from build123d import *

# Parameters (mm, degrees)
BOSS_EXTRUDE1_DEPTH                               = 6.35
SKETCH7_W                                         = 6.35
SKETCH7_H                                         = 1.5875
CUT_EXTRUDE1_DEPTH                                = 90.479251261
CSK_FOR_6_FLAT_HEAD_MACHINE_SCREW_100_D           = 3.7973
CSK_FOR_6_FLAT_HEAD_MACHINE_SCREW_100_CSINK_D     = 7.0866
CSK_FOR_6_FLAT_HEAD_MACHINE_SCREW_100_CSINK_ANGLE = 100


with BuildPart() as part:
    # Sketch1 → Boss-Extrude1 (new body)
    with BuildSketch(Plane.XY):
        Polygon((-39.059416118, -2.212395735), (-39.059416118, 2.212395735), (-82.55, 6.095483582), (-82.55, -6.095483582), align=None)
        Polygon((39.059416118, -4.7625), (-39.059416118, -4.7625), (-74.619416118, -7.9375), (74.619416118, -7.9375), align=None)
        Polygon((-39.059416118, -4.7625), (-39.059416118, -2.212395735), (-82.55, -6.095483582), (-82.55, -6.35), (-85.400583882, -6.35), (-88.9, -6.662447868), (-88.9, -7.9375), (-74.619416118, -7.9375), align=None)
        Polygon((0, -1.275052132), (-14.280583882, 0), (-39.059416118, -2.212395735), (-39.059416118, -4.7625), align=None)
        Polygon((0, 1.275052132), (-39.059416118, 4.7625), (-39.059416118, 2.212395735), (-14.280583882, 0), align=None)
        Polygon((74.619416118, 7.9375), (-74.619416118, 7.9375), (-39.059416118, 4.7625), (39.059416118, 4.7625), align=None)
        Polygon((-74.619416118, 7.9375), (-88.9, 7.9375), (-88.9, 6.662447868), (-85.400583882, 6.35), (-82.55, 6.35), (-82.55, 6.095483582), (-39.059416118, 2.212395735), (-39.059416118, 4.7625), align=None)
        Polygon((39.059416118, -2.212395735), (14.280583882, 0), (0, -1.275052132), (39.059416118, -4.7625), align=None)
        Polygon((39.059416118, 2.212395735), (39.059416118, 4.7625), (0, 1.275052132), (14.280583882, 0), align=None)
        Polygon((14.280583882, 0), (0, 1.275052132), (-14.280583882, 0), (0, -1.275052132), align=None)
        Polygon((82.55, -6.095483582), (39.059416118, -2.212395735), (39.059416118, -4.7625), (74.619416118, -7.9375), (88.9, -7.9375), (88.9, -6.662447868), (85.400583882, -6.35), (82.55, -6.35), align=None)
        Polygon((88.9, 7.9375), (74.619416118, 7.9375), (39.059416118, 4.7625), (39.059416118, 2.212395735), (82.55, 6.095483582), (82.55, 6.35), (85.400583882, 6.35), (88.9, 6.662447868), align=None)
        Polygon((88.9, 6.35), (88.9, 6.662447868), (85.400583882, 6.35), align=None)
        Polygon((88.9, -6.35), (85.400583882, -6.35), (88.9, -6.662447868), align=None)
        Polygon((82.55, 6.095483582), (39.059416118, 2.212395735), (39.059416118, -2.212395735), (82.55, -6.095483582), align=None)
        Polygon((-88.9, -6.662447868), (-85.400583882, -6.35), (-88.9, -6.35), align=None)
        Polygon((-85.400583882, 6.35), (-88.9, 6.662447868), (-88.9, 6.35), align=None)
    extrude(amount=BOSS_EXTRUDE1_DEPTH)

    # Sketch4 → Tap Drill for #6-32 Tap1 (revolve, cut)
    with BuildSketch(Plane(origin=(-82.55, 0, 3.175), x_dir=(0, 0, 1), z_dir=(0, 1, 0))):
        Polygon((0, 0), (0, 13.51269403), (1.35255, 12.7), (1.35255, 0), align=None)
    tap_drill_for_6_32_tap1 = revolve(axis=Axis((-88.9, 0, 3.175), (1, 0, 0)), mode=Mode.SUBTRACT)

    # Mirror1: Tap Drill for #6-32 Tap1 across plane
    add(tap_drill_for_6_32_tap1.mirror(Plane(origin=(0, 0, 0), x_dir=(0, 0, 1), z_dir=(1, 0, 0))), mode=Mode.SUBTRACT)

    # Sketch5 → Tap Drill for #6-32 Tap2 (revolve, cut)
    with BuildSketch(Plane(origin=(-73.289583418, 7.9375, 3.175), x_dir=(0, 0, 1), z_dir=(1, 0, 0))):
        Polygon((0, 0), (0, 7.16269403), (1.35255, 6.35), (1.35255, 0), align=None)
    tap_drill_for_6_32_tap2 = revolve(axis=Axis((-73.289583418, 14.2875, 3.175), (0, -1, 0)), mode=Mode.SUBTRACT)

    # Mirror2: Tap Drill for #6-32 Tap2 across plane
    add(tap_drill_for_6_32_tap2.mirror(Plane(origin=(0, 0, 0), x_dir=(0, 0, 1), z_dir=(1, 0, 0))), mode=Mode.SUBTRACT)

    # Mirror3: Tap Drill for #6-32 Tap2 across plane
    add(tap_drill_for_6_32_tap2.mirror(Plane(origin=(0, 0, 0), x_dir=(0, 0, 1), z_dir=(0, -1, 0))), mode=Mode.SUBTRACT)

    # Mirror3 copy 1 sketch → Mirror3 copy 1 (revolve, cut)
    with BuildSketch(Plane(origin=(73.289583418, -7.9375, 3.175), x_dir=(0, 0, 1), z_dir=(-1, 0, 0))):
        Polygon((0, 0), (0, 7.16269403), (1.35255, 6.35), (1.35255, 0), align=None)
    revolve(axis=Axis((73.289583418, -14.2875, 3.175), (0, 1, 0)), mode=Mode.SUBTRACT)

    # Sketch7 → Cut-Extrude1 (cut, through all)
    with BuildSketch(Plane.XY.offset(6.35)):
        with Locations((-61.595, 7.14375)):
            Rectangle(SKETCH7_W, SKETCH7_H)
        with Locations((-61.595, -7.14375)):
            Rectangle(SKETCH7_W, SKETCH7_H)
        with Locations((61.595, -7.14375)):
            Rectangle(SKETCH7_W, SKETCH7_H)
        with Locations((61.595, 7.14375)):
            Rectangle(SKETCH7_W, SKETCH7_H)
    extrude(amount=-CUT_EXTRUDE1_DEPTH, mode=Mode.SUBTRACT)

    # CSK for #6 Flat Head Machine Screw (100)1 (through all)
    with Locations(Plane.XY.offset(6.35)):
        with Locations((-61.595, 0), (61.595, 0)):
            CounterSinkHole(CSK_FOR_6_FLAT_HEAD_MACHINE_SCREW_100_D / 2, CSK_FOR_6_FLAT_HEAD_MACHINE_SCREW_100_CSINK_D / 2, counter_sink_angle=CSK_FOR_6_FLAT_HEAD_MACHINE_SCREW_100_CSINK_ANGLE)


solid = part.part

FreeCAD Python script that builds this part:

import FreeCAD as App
import Part
import Sketcher
from FreeCAD import Vector
Q = App.Units.Quantity

doc = App.newDocument("Part")
params = doc.addObject("Spreadsheet::Sheet", "Params")
for row, (alias, value) in enumerate([
    ("sketch1_width", "7 in"),
    ("sketch1_height", "0.5 in"),
    ("sketch1_width2", "0.25 in"),
    ("sketch1_height2", "0.0625 in"),
    ("pad1_length", "0.25 in"),
    ("sketch2_width", "0.5 in"),
    ("groove_angle", "360 deg"),
    ("sketch3_width", "0.25 in"),
    ("groove2_angle", "360 deg"),
    ("sketch4_width", "0.25 in"),
    ("groove3_angle", "360 deg"),
    ("sketch5_width", "0.25 in"),
    ("sketch5_height", "0.0625 in"),
    ("hole_diameter", "0.1495 in"),
    ("hole_csink_diameter", "0.279 in"),
], start=1):
    params.set(f"A{row}", alias)
    params.set(f"B{row}", "=" + value)
    params.setAlias(f"B{row}", alias)

body = doc.addObject("PartDesign::Body", "Body")

# Sketch on XY plane
sketch1 = doc.addObject("Sketcher::SketchObject", "Sketch")
body.addObject(sketch1)
sketch1.AttachmentSupport = (doc.XY_Plane, [""])
sketch1.MapMode = "FlatFace"
sketch1.addGeometry([
    Part.LineSegment(Vector(82.55, 6.35, 0), Vector(88.9, 6.35, 0)),  # 0
    Part.LineSegment(Vector(88.9, 6.35, 0), Vector(88.9, 7.9375, 0)),  # 1
    Part.LineSegment(Vector(88.9, 7.9375, 0), Vector(-88.9, 7.9375, 0)),  # 2
    Part.LineSegment(Vector(-88.9, 7.9375, 0), Vector(-88.9, 6.35, 0)),  # 3
    Part.LineSegment(Vector(-88.9, 6.35, 0), Vector(-82.55, 6.35, 0)),  # 4
    Part.LineSegment(Vector(-82.55, 6.35, 0), Vector(-82.55, -6.35, 0)),  # 5
    Part.LineSegment(Vector(-82.55, -6.35, 0), Vector(-88.9, -6.35, 0)),  # 6
    Part.LineSegment(Vector(-88.9, -6.35, 0), Vector(-88.9, -7.9375, 0)),  # 7
    Part.LineSegment(Vector(-88.9, -7.9375, 0), Vector(88.9, -7.9375, 0)),  # 8
    Part.LineSegment(Vector(88.9, -7.9375, 0), Vector(88.9, -6.35, 0)),  # 9
    Part.LineSegment(Vector(88.9, -6.35, 0), Vector(82.55, -6.35, 0)),  # 10
    Part.LineSegment(Vector(82.55, -6.35, 0), Vector(82.55, 6.35, 0)),  # 11
    Part.LineSegment(Vector(14.280584, 0, 0), Vector(39.059416, 2.212396, 0)),  # 12
    Part.LineSegment(Vector(39.059416, 2.212396, 0), Vector(39.059416, -2.212396, 0)),  # 13
    Part.LineSegment(Vector(39.059416, -2.212396, 0), Vector(14.280584, 0, 0)),  # 14
    Part.LineSegment(Vector(0, -1.275052, 0), Vector(39.059416, -4.7625, 0)),  # 15
    Part.LineSegment(Vector(39.059416, -4.7625, 0), Vector(-39.059416, -4.7625, 0)),  # 16
    Part.LineSegment(Vector(-39.059416, -4.7625, 0), Vector(0, -1.275052, 0)),  # 17
    Part.LineSegment(Vector(-39.059416, 2.212396, 0), Vector(-14.280584, 0, 0)),  # 18
    Part.LineSegment(Vector(-14.280584, 0, 0), Vector(-39.059416, -2.212396, 0)),  # 19
    Part.LineSegment(Vector(-39.059416, -2.212396, 0), Vector(-39.059416, 2.212396, 0)),  # 20
    Part.LineSegment(Vector(-39.059416, 4.7625, 0), Vector(39.059416, 4.7625, 0)),  # 21
    Part.LineSegment(Vector(39.059416, 4.7625, 0), Vector(0, 1.275052, 0)),  # 22
    Part.LineSegment(Vector(0, 1.275052, 0), Vector(-39.059416, 4.7625, 0)),  # 23
], False)
sketch1.addConstraint([
    Sketcher.Constraint("Coincident", 0, 2, 1, 1),
    Sketcher.Constraint("Coincident", 1, 2, 2, 1),
    Sketcher.Constraint("Coincident", 2, 2, 3, 1),
    Sketcher.Constraint("Coincident", 3, 2, 4, 1),
    Sketcher.Constraint("Coincident", 4, 2, 5, 1),
    Sketcher.Constraint("Coincident", 5, 2, 6, 1),
    Sketcher.Constraint("Coincident", 6, 2, 7, 1),
    Sketcher.Constraint("Coincident", 7, 2, 8, 1),
    Sketcher.Constraint("Coincident", 8, 2, 9, 1),
    Sketcher.Constraint("Coincident", 9, 2, 10, 1),
    Sketcher.Constraint("Coincident", 10, 2, 11, 1),
    Sketcher.Constraint("Coincident", 11, 2, 0, 1),
    Sketcher.Constraint("Coincident", 12, 2, 13, 1),
    Sketcher.Constraint("Coincident", 13, 2, 14, 1),
    Sketcher.Constraint("Coincident", 14, 2, 12, 1),
    Sketcher.Constraint("Coincident", 15, 2, 16, 1),
    Sketcher.Constraint("Coincident", 16, 2, 17, 1),
    Sketcher.Constraint("Coincident", 17, 2, 15, 1),
    Sketcher.Constraint("Coincident", 18, 2, 19, 1),
    Sketcher.Constraint("Coincident", 19, 2, 20, 1),
    Sketcher.Constraint("Coincident", 20, 2, 18, 1),
    Sketcher.Constraint("Coincident", 21, 2, 22, 1),
    Sketcher.Constraint("Coincident", 22, 2, 23, 1),
    Sketcher.Constraint("Coincident", 23, 2, 21, 1),
    Sketcher.Constraint("Horizontal", 0),
    Sketcher.Constraint("Vertical", 1),
    Sketcher.Constraint("Horizontal", 2),
    Sketcher.Constraint("Vertical", 3),
    Sketcher.Constraint("Horizontal", 4),
    Sketcher.Constraint("Vertical", 5),
    Sketcher.Constraint("Horizontal", 6),
    Sketcher.Constraint("Vertical", 7),
    Sketcher.Constraint("Horizontal", 8),
    Sketcher.Constraint("Vertical", 9),
    Sketcher.Constraint("Horizontal", 10),
    Sketcher.Constraint("Vertical", 11),
    Sketcher.Constraint("Vertical", 13),
    Sketcher.Constraint("Horizontal", 16),
    Sketcher.Constraint("Vertical", 20),
    Sketcher.Constraint("Horizontal", 21),
    Sketcher.Constraint("Symmetric", 0, 2, 6, 2, -1, 1),
    Sketcher.Constraint("Symmetric", 2, 2, 8, 2, -1, 1),
    Sketcher.Constraint("Symmetric", 4, 2, 10, 2, -1, 1),
    Sketcher.Constraint("Symmetric", 14, 2, 18, 2, -1, 1),
    Sketcher.Constraint("Symmetric", 12, 2, 19, 2, -1, 1),
    Sketcher.Constraint("Symmetric", 16, 2, 21, 2, -1, 1),
    Sketcher.Constraint("Symmetric", 17, 2, 22, 2, -1, 1),
    Sketcher.Constraint("Symmetric", 0, 2, 3, 2, -2),
    Sketcher.Constraint("PointOnObject", 14, 2, -1),
    Sketcher.Constraint("PointOnObject", 17, 2, -2),
    Sketcher.Constraint("Parallel", 14, 15),
    Sketcher.Constraint("Parallel", 12, 17),
    Sketcher.Constraint("Parallel", 15, 18),
    Sketcher.Constraint("Parallel", 18, 23),
    Sketcher.Constraint("Horizontal", 13, 2, 19, 2),
    Sketcher.Constraint("Vertical", 13, 2, 15, 2),
    Sketcher.Constraint("DistanceX", 2, 2, 2, 1, Q("7 in")),
    Sketcher.Constraint("DistanceY", 5, 2, 5, 1, Q("0.5 in")),
    Sketcher.Constraint("DistanceX", 0, 1, 0, 2, Q("0.25 in")),
    Sketcher.Constraint("DistanceX", 18, 2, 12, 2, Q("2.1 in")),
    Sketcher.Constraint("DistanceY", 1, 1, 1, 2, Q("0.0625 in")),
    Sketcher.Constraint("DistanceY", 15, 2, -1, 1, Q("0.1875 in")),
    Sketcher.Constraint("DistanceY", 13, 2, 13, 1, 4.424791),
    Sketcher.Constraint("DistanceX", 16, 2, 16, 1, 78.118832),
])
sketch1.setExpression("Constraints[56]", "Params.sketch1_width")
sketch1.setExpression("Constraints[57]", "Params.sketch1_height")
sketch1.setExpression("Constraints[58]", "Params.sketch1_width2")
sketch1.setExpression("Constraints[60]", "Params.sketch1_height2")
pad1 = doc.addObject("PartDesign::Pad", "Pad")
body.addObject(pad1)
pad1.Profile = sketch1
pad1.setExpression("Length", "Params.pad1_length")

# Sketch on XZ plane
sketch2 = doc.addObject("Sketcher::SketchObject", "Sketch001")
body.addObject(sketch2)
sketch2.AttachmentSupport = (doc.XZ_Plane, [""])
sketch2.MapMode = "FlatFace"
sketch2.addGeometry([
    Part.LineSegment(Vector(-69.037306, 3.175, 0), Vector(-82.55, 3.175, 0)),
    Part.LineSegment(Vector(-82.55, 3.175, 0), Vector(-82.55, 4.52755, 0)),
    Part.LineSegment(Vector(-82.55, 4.52755, 0), Vector(-69.85, 4.52755, 0)),
    Part.LineSegment(Vector(-69.85, 4.52755, 0), Vector(-69.037306, 3.175, 0)),
], False)
sketch2.addGeometry(Part.LineSegment(Vector(-82.55, 3.175, 0), Vector(-69.037306, 3.175, 0)), True)  # axis
sketch2.addConstraint([
    Sketcher.Constraint("Coincident", 0, 2, 1, 1),
    Sketcher.Constraint("Coincident", 1, 2, 2, 1),
    Sketcher.Constraint("Coincident", 2, 2, 3, 1),
    Sketcher.Constraint("Coincident", 3, 2, 0, 1),
    Sketcher.Constraint("Horizontal", 0),
    Sketcher.Constraint("Vertical", 1),
    Sketcher.Constraint("Horizontal", 2),
    Sketcher.Constraint("Horizontal", 4),
    Sketcher.Constraint("Coincident", 4, 1, 0, 2),
    Sketcher.Constraint("Equal", 0, 4),
    Sketcher.Constraint("DistanceX", 2, 1, 2, 2, Q("0.5 in")),
    Sketcher.Constraint("Angle", 3, Q("-59 deg")),
    Sketcher.Constraint("DistanceX", 0, 2, -1, 1, Q("3.25 in")),
    Sketcher.Constraint("DistanceY", -1, 1, 0, 2, Q("0.125 in")),
    Sketcher.Constraint("DistanceY", 1, 1, 1, 2, 1.35255),
])
sketch2.setExpression("Constraints[10]", "Params.sketch2_width")
groove = doc.addObject("PartDesign::Groove", "Groove")
body.addObject(groove)
groove.Profile = sketch2
groove.ReferenceAxis = (sketch2, ["Axis0"])
groove.setExpression("Angle", "Params.groove_angle")
doc.recompute()

mirrored = doc.addObject("PartDesign::Mirrored", "Mirrored")
body.addObject(mirrored)
mirrored.Originals = [groove]
mirrored.MirrorPlane = (doc.YZ_Plane, [""])
body.Tip = mirrored

# Sketch on YZ plane
sketch3 = doc.addObject("Sketcher::SketchObject", "Sketch002")
body.addObject(sketch3)
sketch3.AttachmentSupport = (doc.YZ_Plane, [""])
sketch3.MapMode = "FlatFace"
sketch3.AttachmentOffset = App.Placement(Vector(0, 0, -73.289583), App.Rotation())
sketch3.addGeometry([
    Part.LineSegment(Vector(0.774806, 3.175, 0), Vector(7.9375, 3.175, 0)),
    Part.LineSegment(Vector(7.9375, 3.175, 0), Vector(7.9375, 4.52755, 0)),
    Part.LineSegment(Vector(7.9375, 4.52755, 0), Vector(1.5875, 4.52755, 0)),
    Part.LineSegment(Vector(1.5875, 4.52755, 0), Vector(0.774806, 3.175, 0)),
], False)
sketch3.addGeometry(Part.LineSegment(Vector(7.9375, 3.175, 0), Vector(0.774806, 3.175, 0)), True)  # axis
sketch3.addConstraint([
    Sketcher.Constraint("Coincident", 0, 2, 1, 1),
    Sketcher.Constraint("Coincident", 1, 2, 2, 1),
    Sketcher.Constraint("Coincident", 2, 2, 3, 1),
    Sketcher.Constraint("Coincident", 3, 2, 0, 1),
    Sketcher.Constraint("Horizontal", 0),
    Sketcher.Constraint("Vertical", 1),
    Sketcher.Constraint("Horizontal", 2),
    Sketcher.Constraint("Horizontal", 4),
    Sketcher.Constraint("Coincident", 4, 1, 0, 2),
    Sketcher.Constraint("Equal", 0, 4),
    Sketcher.Constraint("Angle", 3, Q("-121 deg")),
    Sketcher.Constraint("DistanceX", 2, 2, 2, 1, Q("0.25 in")),
    Sketcher.Constraint("DistanceX", -1, 1, 0, 2, Q("0.3125 in")),
    Sketcher.Constraint("DistanceY", -1, 1, 0, 2, Q("0.125 in")),
    Sketcher.Constraint("DistanceY", 1, 1, 1, 2, 1.35255),
])
sketch3.setExpression("Constraints[11]", "Params.sketch3_width")
groove2 = doc.addObject("PartDesign::Groove", "Groove001")
body.addObject(groove2)
groove2.Profile = sketch3
groove2.ReferenceAxis = (sketch3, ["Axis0"])
groove2.setExpression("Angle", "Params.groove2_angle")
doc.recompute()

mirrored2 = doc.addObject("PartDesign::Mirrored", "Mirrored001")
body.addObject(mirrored2)
mirrored2.Originals = [groove2]
mirrored2.MirrorPlane = (doc.YZ_Plane, [""])
body.Tip = mirrored2
doc.recompute()

mirrored3 = doc.addObject("PartDesign::Mirrored", "Mirrored002")
body.addObject(mirrored3)
mirrored3.Originals = [groove2]
mirrored3.MirrorPlane = (doc.XZ_Plane, [""])
body.Tip = mirrored3

# Sketch on YZ plane
sketch4 = doc.addObject("Sketcher::SketchObject", "Sketch003")
body.addObject(sketch4)
sketch4.AttachmentSupport = (doc.YZ_Plane, [""])
sketch4.MapMode = "FlatFace"
sketch4.AttachmentOffset = App.Placement(Vector(0, 0, 73.289583), App.Rotation())
sketch4.addGeometry([
    Part.LineSegment(Vector(-0.774806, 3.175, 0), Vector(-7.9375, 3.175, 0)),
    Part.LineSegment(Vector(-7.9375, 3.175, 0), Vector(-7.9375, 4.52755, 0)),
    Part.LineSegment(Vector(-7.9375, 4.52755, 0), Vector(-1.5875, 4.52755, 0)),
    Part.LineSegment(Vector(-1.5875, 4.52755, 0), Vector(-0.774806, 3.175, 0)),
], False)
sketch4.addGeometry(Part.LineSegment(Vector(-7.9375, 3.175, 0), Vector(-0.774806, 3.175, 0)), True)  # axis
sketch4.addConstraint([
    Sketcher.Constraint("Coincident", 0, 2, 1, 1),
    Sketcher.Constraint("Coincident", 1, 2, 2, 1),
    Sketcher.Constraint("Coincident", 2, 2, 3, 1),
    Sketcher.Constraint("Coincident", 3, 2, 0, 1),
    Sketcher.Constraint("Horizontal", 0),
    Sketcher.Constraint("Vertical", 1),
    Sketcher.Constraint("Horizontal", 2),
    Sketcher.Constraint("Horizontal", 4),
    Sketcher.Constraint("Coincident", 4, 1, 0, 2),
    Sketcher.Constraint("Equal", 0, 4),
    Sketcher.Constraint("Angle", 3, Q("-59 deg")),
    Sketcher.Constraint("DistanceX", 2, 1, 2, 2, Q("0.25 in")),
    Sketcher.Constraint("DistanceX", 0, 2, -1, 1, Q("0.3125 in")),
    Sketcher.Constraint("DistanceY", -1, 1, 0, 2, Q("0.125 in")),
    Sketcher.Constraint("DistanceY", 1, 1, 1, 2, 1.35255),
])
sketch4.setExpression("Constraints[11]", "Params.sketch4_width")
groove3 = doc.addObject("PartDesign::Groove", "Groove002")
body.addObject(groove3)
groove3.Profile = sketch4
groove3.ReferenceAxis = (sketch4, ["Axis0"])
groove3.setExpression("Angle", "Params.groove3_angle")

# Sketch on XY plane
sketch5 = doc.addObject("Sketcher::SketchObject", "Sketch004")
body.addObject(sketch5)
sketch5.AttachmentSupport = (doc.XY_Plane, [""])
sketch5.MapMode = "FlatFace"
sketch5.AttachmentOffset = App.Placement(Vector(0, 0, 0.25 * 25.4), App.Rotation())
sketch5.addGeometry([
    Part.LineSegment(Vector(-64.77, 7.9375, 0), Vector(-64.77, 6.35, 0)),  # 0
    Part.LineSegment(Vector(-64.77, 6.35, 0), Vector(-58.42, 6.35, 0)),  # 1
    Part.LineSegment(Vector(-58.42, 6.35, 0), Vector(-58.42, 7.9375, 0)),  # 2
    Part.LineSegment(Vector(-58.42, 7.9375, 0), Vector(-64.77, 7.9375, 0)),  # 3
    Part.LineSegment(Vector(-64.77, -6.35, 0), Vector(-64.77, -7.9375, 0)),  # 4
    Part.LineSegment(Vector(-64.77, -7.9375, 0), Vector(-58.42, -7.9375, 0)),  # 5
    Part.LineSegment(Vector(-58.42, -7.9375, 0), Vector(-58.42, -6.35, 0)),  # 6
    Part.LineSegment(Vector(-58.42, -6.35, 0), Vector(-64.77, -6.35, 0)),  # 7
    Part.LineSegment(Vector(58.42, -6.35, 0), Vector(58.42, -7.9375, 0)),  # 8
    Part.LineSegment(Vector(58.42, -7.9375, 0), Vector(64.77, -7.9375, 0)),  # 9
    Part.LineSegment(Vector(64.77, -7.9375, 0), Vector(64.77, -6.35, 0)),  # 10
    Part.LineSegment(Vector(64.77, -6.35, 0), Vector(58.42, -6.35, 0)),  # 11
    Part.LineSegment(Vector(58.42, 7.9375, 0), Vector(58.42, 6.35, 0)),  # 12
    Part.LineSegment(Vector(58.42, 6.35, 0), Vector(64.77, 6.35, 0)),  # 13
    Part.LineSegment(Vector(64.77, 6.35, 0), Vector(64.77, 7.9375, 0)),  # 14
    Part.LineSegment(Vector(64.77, 7.9375, 0), Vector(58.42, 7.9375, 0)),  # 15
], False)
sketch5.addConstraint([
    Sketcher.Constraint("Coincident", 0, 2, 1, 1),
    Sketcher.Constraint("Coincident", 1, 2, 2, 1),
    Sketcher.Constraint("Coincident", 2, 2, 3, 1),
    Sketcher.Constraint("Coincident", 3, 2, 0, 1),
    Sketcher.Constraint("Coincident", 4, 2, 5, 1),
    Sketcher.Constraint("Coincident", 5, 2, 6, 1),
    Sketcher.Constraint("Coincident", 6, 2, 7, 1),
    Sketcher.Constraint("Coincident", 7, 2, 4, 1),
    Sketcher.Constraint("Coincident", 8, 2, 9, 1),
    Sketcher.Constraint("Coincident", 9, 2, 10, 1),
    Sketcher.Constraint("Coincident", 10, 2, 11, 1),
    Sketcher.Constraint("Coincident", 11, 2, 8, 1),
    Sketcher.Constraint("Coincident", 12, 2, 13, 1),
    Sketcher.Constraint("Coincident", 13, 2, 14, 1),
    Sketcher.Constraint("Coincident", 14, 2, 15, 1),
    Sketcher.Constraint("Coincident", 15, 2, 12, 1),
    Sketcher.Constraint("Vertical", 0),
    Sketcher.Constraint("Horizontal", 1),
    Sketcher.Constraint("Vertical", 2),
    Sketcher.Constraint("Horizontal", 3),
    Sketcher.Constraint("Vertical", 4),
    Sketcher.Constraint("Horizontal", 5),
    Sketcher.Constraint("Vertical", 6),
    Sketcher.Constraint("Horizontal", 7),
    Sketcher.Constraint("Vertical", 8),
    Sketcher.Constraint("Horizontal", 9),
    Sketcher.Constraint("Vertical", 10),
    Sketcher.Constraint("Horizontal", 11),
    Sketcher.Constraint("Vertical", 12),
    Sketcher.Constraint("Horizontal", 13),
    Sketcher.Constraint("Vertical", 14),
    Sketcher.Constraint("Horizontal", 15),
    Sketcher.Constraint("Symmetric", 2, 2, 8, 2, -1, 1),
    Sketcher.Constraint("Symmetric", 0, 2, 10, 2, -1, 1),
    Sketcher.Constraint("Symmetric", 6, 2, 12, 2, -1, 1),
    Sketcher.Constraint("Symmetric", 4, 2, 14, 2, -1, 1),
    Sketcher.Constraint("Symmetric", 5, 2, 8, 2, -2),
    Sketcher.Constraint("Symmetric", 7, 2, 10, 2, -2),
    Sketcher.Constraint("DistanceX", 1, 1, 1, 2, Q("0.25 in")),
    Sketcher.Constraint("DistanceX", 1, 2, -1, 1, Q("2.3 in")),
    Sketcher.Constraint("DistanceY", 6, 2, 1, 2, Q("0.5 in")),
    Sketcher.Constraint("DistanceY", 0, 2, 0, 1, Q("0.0625 in")),
])
sketch5.setExpression("Constraints[38]", "Params.sketch5_width")
sketch5.setExpression("Constraints[41]", "Params.sketch5_height")
pocket1 = doc.addObject("PartDesign::Pocket", "Pocket")
body.addObject(pocket1)
pocket1.Profile = sketch5
pocket1.Type = "ThroughAll"

# Sketch on XY plane
sketch6 = doc.addObject("Sketcher::SketchObject", "Sketch005")
body.addObject(sketch6)
sketch6.AttachmentSupport = (doc.XY_Plane, [""])
sketch6.MapMode = "FlatFace"
sketch6.AttachmentOffset = App.Placement(Vector(0, 0, 0.25 * 25.4), App.Rotation())
sketch6.addGeometry([
    Part.Circle(Vector(-61.595, 0, 0), Vector(0, 0, 1), 1.89865),
    Part.Circle(Vector(61.595, 0, 0), Vector(0, 0, 1), 1.89865),
], False)
sketch6.addConstraint([
    Sketcher.Constraint("Equal", 0, 1),
    Sketcher.Constraint("Symmetric", 0, 3, 1, 3, -1, 1),
    Sketcher.Constraint("PointOnObject", 0, 3, -1),
    Sketcher.Constraint("Diameter", 0, Q("0.1495 in")),
    Sketcher.Constraint("DistanceX", 0, 3, 1, 3, Q("4.85 in")),
])
doc.recompute()
hole = doc.addObject("PartDesign::Hole", "Hole")
body.addObject(hole)
hole.Profile = sketch6
hole.ThreadType = "None"
hole.setExpression("Diameter", "Params.hole_diameter")
hole.DepthType = "ThroughAll"
hole.HoleCutType = "Countersink"
hole.setExpression("HoleCutDiameter", "Params.hole_csink_diameter")
hole.HoleCutCountersinkAngle = 100

doc.recompute()
